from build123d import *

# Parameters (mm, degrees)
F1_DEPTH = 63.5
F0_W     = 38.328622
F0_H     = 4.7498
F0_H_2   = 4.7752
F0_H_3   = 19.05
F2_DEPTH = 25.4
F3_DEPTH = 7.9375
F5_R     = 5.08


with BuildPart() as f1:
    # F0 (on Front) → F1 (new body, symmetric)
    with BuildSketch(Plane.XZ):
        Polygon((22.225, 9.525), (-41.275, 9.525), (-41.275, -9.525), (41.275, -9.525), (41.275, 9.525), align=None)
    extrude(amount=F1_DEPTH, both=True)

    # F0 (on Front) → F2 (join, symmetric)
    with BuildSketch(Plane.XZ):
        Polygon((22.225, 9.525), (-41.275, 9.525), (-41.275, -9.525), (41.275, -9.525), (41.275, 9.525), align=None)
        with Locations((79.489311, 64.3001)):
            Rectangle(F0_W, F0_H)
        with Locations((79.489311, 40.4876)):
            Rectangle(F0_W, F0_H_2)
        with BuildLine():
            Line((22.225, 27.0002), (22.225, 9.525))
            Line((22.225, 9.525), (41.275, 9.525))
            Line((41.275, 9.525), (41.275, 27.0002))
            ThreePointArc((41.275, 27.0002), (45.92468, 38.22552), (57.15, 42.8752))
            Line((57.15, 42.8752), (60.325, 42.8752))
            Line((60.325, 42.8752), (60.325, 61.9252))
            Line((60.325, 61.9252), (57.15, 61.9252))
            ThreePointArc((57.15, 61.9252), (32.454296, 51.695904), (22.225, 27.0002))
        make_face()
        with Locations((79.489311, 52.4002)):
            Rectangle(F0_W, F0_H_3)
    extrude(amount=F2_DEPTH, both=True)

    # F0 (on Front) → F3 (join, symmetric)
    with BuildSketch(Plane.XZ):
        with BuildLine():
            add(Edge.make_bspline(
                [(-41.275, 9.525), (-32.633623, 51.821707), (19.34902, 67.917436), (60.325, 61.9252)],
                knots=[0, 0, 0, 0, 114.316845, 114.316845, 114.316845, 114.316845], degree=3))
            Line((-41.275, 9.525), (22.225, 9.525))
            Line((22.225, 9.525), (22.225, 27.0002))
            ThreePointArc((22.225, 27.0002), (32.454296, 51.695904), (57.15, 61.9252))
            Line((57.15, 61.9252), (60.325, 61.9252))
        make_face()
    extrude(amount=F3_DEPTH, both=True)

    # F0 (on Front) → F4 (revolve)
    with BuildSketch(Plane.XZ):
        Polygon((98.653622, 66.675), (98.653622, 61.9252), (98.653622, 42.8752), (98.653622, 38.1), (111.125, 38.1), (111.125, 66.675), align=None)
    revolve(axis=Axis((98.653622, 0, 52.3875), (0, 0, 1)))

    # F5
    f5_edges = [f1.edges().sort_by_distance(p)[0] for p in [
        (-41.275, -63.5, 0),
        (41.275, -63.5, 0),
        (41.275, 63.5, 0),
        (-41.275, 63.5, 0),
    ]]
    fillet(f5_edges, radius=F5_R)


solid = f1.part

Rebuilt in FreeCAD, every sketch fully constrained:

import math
import FreeCAD as App
import Part
import Sketcher
from FreeCAD import Vector
Q = App.Units.Quantity


def edges_at(feature, points):
    """Names of the edges that pass closest to the given points."""
    edges = feature.Shape.Edges
    near = lambda p: min(range(len(edges)), key=lambda i: edges[i].distToShape(Part.Vertex(*p))[0])
    return sorted({f"Edge{near(p) + 1}" for p in points})

doc = App.newDocument("Part")
body = doc.addObject("PartDesign::Body", "Body")

# Sketch on XZ plane
sketch1 = body.newObject("Sketcher::SketchObject", "Sketch")
sketch1.AttachmentSupport = (doc.getObject("XZ_Plane"), [""])
sketch1.MapMode = "FlatFace"
sketch1.addGeometry(Part.LineSegment(Vector(-41, 10, 0), Vector(-41, -10, 0)), False)
sketch1.addGeometry(Part.LineSegment(Vector(-41, -10, 0), Vector(41, -10, 0)), False)
sketch1.addGeometry(Part.LineSegment(Vector(41, -10, 0), Vector(41, 10, 0)), False)
sketch1.addGeometry(Part.LineSegment(Vector(41, 10, 0), Vector(-41, 10, 0)), False)
sketch1.addConstraint(Sketcher.Constraint("Coincident", 0, 2, 1, 1))
sketch1.addConstraint(Sketcher.Constraint("Coincident", 1, 2, 2, 1))
sketch1.addConstraint(Sketcher.Constraint("Coincident", 2, 2, 3, 1))
sketch1.addConstraint(Sketcher.Constraint("Coincident", 3, 2, 0, 1))
sketch1.addConstraint(Sketcher.Constraint("Vertical", 0))
sketch1.addConstraint(Sketcher.Constraint("Horizontal", 1))
sketch1.addConstraint(Sketcher.Constraint("Vertical", 2))
sketch1.addConstraint(Sketcher.Constraint("Horizontal", 3))
sketch1.addConstraint(Sketcher.Constraint("Symmetric", 0, 2, 2, 2, -1, 1))
sketch1.addConstraint(Sketcher.Constraint("DistanceX", 1, 1, 1, 2, Q("3.25 in")))
sketch1.addConstraint(Sketcher.Constraint("DistanceY", 0, 2, 0, 1, Q("0.75 in")))
pad1 = body.newObject("PartDesign::Pad", "Pad")
pad1.Profile = sketch1
pad1.Length = Q("5 in")
pad1.Midplane = True

# Sketch on XZ plane
sketch2 = body.newObject("Sketcher::SketchObject", "Sketch001")
sketch2.AttachmentSupport = (doc.getObject("XZ_Plane"), [""])
sketch2.MapMode = "FlatFace"
sketch2.addGeometry(Part.LineSegment(Vector(-41.3, 9.5, 0), Vector(-41.3, -9.5, 0)), False)
sketch2.addGeometry(Part.LineSegment(Vector(-41.3, -9.5, 0), Vector(41.3, -9.5, 0)), False)
sketch2.addGeometry(Part.LineSegment(Vector(41.3, -9.5, 0), Vector(41.3, 27, 0)), False)
sketch2.addGeometry(Part.ArcOfCircle(Part.Circle(Vector(57.2, 27, 0), Vector(0, 0, 1), 15.9), math.radians(90), math.radians(180)), False)
sketch2.addGeometry(Part.LineSegment(Vector(57.1, 42.9, 0), Vector(60.3, 42.9, 0)), False)
sketch2.addGeometry(Part.LineSegment(Vector(60.3, 42.9, 0), Vector(60.3, 38.1, 0)), False)
sketch2.addGeometry(Part.LineSegment(Vector(60.3, 38.1, 0), Vector(98.7, 38.1, 0)), False)
sketch2.addGeometry(Part.LineSegment(Vector(98.7, 38.1, 0), Vector(98.7, 66.7, 0)), False)
sketch2.addGeometry(Part.LineSegment(Vector(98.7, 66.7, 0), Vector(60.3, 66.7, 0)), False)
sketch2.addGeometry(Part.LineSegment(Vector(60.3, 66.7, 0), Vector(60.3, 61.9, 0)), False)
sketch2.addGeometry(Part.LineSegment(Vector(60.3, 61.9, 0), Vector(57.1, 61.9, 0)), False)
sketch2.addGeometry(Part.ArcOfCircle(Part.Circle(Vector(57.2, 27, 0), Vector(0, 0, 1), 34.9), math.radians(90), math.radians(180)), False)
sketch2.addGeometry(Part.LineSegment(Vector(22.2, 27, 0), Vector(22.2, 9.5, 0)), False)
sketch2.addGeometry(Part.LineSegment(Vector(22.2, 9.5, 0), Vector(-41.3, 9.5, 0)), False)
sketch2.addConstraint(Sketcher.Constraint("Coincident", 0, 2, 1, 1))
sketch2.addConstraint(Sketcher.Constraint("Coincident", 1, 2, 2, 1))
sketch2.addConstraint(Sketcher.Constraint("Tangent", 2, 2, 3, 2))
sketch2.addConstraint(Sketcher.Constraint("Tangent", 3, 1, 4, 1))
sketch2.addConstraint(Sketcher.Constraint("Coincident", 4, 2, 5, 1))
sketch2.addConstraint(Sketcher.Constraint("Coincident", 5, 2, 6, 1))
sketch2.addConstraint(Sketcher.Constraint("Coincident", 6, 2, 7, 1))
sketch2.addConstraint(Sketcher.Constraint("Coincident", 7, 2, 8, 1))
sketch2.addConstraint(Sketcher.Constraint("Coincident", 8, 2, 9, 1))
sketch2.addConstraint(Sketcher.Constraint("Coincident", 9, 2, 10, 1))
sketch2.addConstraint(Sketcher.Constraint("Tangent", 10, 2, 11, 1))
sketch2.addConstraint(Sketcher.Constraint("Tangent", 11, 2, 12, 1))
sketch2.addConstraint(Sketcher.Constraint("Coincident", 12, 2, 13, 1))
sketch2.addConstraint(Sketcher.Constraint("Coincident", 13, 2, 0, 1))
sketch2.addConstraint(Sketcher.Constraint("Vertical", 0))
sketch2.addConstraint(Sketcher.Constraint("Horizontal", 1))
sketch2.addConstraint(Sketcher.Constraint("Vertical", 2))
sketch2.addConstraint(Sketcher.Constraint("Horizontal", 4))
sketch2.addConstraint(Sketcher.Constraint("Vertical", 5))
sketch2.addConstraint(Sketcher.Constraint("Horizontal", 6))
sketch2.addConstraint(Sketcher.Constraint("Vertical", 7))
sketch2.addConstraint(Sketcher.Constraint("Horizontal", 8))
sketch2.addConstraint(Sketcher.Constraint("Vertical", 9))
sketch2.addConstraint(Sketcher.Constraint("Horizontal", 10))
sketch2.addConstraint(Sketcher.Constraint("Vertical", 12))
sketch2.addConstraint(Sketcher.Constraint("Horizontal", 13))
sketch2.addConstraint(Sketcher.Constraint("Coincident", 11, 3, 3, 3))
sketch2.addConstraint(Sketcher.Constraint("Symmetric", 1, 2, 13, 2, -1, 1))
sketch2.addConstraint(Sketcher.Constraint("Vertical", 5, 2, 8, 2))
sketch2.addConstraint(Sketcher.Constraint("DistanceX", 13, 2, 13, 1, Q("2.5 in")))
sketch2.addConstraint(Sketcher.Constraint("Radius", 3, Q("0.625 in")))
sketch2.addConstraint(Sketcher.Constraint("Radius", 11, Q("1.375 in")))
sketch2.addConstraint(Sketcher.Constraint("DistanceY", 0, 2, 0, 1, Q("0.75 in")))
sketch2.addConstraint(Sketcher.Constraint("DistanceY", -1, 1, 5, 2, Q("1.5 in")))
sketch2.addConstraint(Sketcher.Constraint("DistanceX", 11, 2, 5, 2, Q("1.5 in")))
sketch2.addConstraint(Sketcher.Constraint("DistanceY", 2, 1, 2, 2, Q("1.438 in")))
sketch2.addConstraint(Sketcher.Constraint("DistanceY", 7, 1, 7, 2, Q("1.125 in")))
sketch2.addConstraint(Sketcher.Constraint("DistanceX", 6, 1, 6, 2, 38.328622))
pad2 = body.newObject("PartDesign::Pad", "Pad001")
pad2.Profile = sketch2
pad2.Length = Q("2 in")
pad2.Midplane = True

# Sketch on XZ plane
sketch3 = body.newObject("Sketcher::SketchObject", "Sketch002")
sketch3.AttachmentSupport = (doc.getObject("XZ_Plane"), [""])
sketch3.MapMode = "FlatFace"
sketch3.addGeometry(Part.BSplineCurve([Vector(-41.275, 9.525, 0), Vector(-32.633623, 51.821707, 0), Vector(19.34902, 67.917436, 0), Vector(60.325, 61.9252, 0)], [4, 4], [0, 114.316845], False, 3, [1, 1, 1, 1], False), False)
sketch3.addGeometry(Part.LineSegment(Vector(-41.275, 9.525, 0), Vector(22.225, 9.525, 0)), False)
sketch3.addGeometry(Part.LineSegment(Vector(22.225, 9.525, 0), Vector(22.225, 27.0002, 0)), False)
sketch3.addGeometry(Part.ArcOfCircle(Part.Circle(Vector(57.150001, 27.000199, 0), Vector(0, 0, 1), 34.925001), math.radians(90.000002), math.radians(179.999998)), False)
sketch3.addGeometry(Part.LineSegment(Vector(57.15, 61.9252, 0), Vector(60.325, 61.9252, 0)), False)
sketch3.addConstraint(Sketcher.Constraint("Block", 0))
sketch3.addConstraint(Sketcher.Constraint("Coincident", 0, 1, 1, 1))
sketch3.addConstraint(Sketcher.Constraint("Coincident", 1, 2, 2, 1))
sketch3.addConstraint(Sketcher.Constraint("Tangent", 2, 2, 3, 2))
sketch3.addConstraint(Sketcher.Constraint("Tangent", 3, 1, 4, 1))
sketch3.addConstraint(Sketcher.Constraint("Coincident", 4, 2, 0, 2))
sketch3.addConstraint(Sketcher.Constraint("Horizontal", 1))
sketch3.addConstraint(Sketcher.Constraint("Vertical", 2))
sketch3.addConstraint(Sketcher.Constraint("Horizontal", 4))
sketch3.addConstraint(Sketcher.Constraint("DistanceX", 1, 1, 1, 2, Q("2.5 in")))
sketch3.addConstraint(Sketcher.Constraint("Radius", 3, Q("1.375 in")))
pad3 = body.newObject("PartDesign::Pad", "Pad002")
pad3.Profile = sketch3
pad3.Length = Q("0.625 in")
pad3.Midplane = True

# Sketch on XZ plane
sketch4 = body.newObject("Sketcher::SketchObject", "Sketch003")
sketch4.AttachmentSupport = (doc.getObject("XZ_Plane"), [""])
sketch4.MapMode = "FlatFace"
sketch4.addGeometry(Part.LineSegment(Vector(99, 67, 0), Vector(99, 38, 0)), False)
sketch4.addGeometry(Part.LineSegment(Vector(99, 38, 0), Vector(111, 38, 0)), False)
sketch4.addGeometry(Part.LineSegment(Vector(111, 38, 0), Vector(111, 67, 0)), False)
sketch4.addGeometry(Part.LineSegment(Vector(111, 67, 0), Vector(99, 67, 0)), False)
sketch4.addGeometry(Part.LineSegment(Vector(99, 38, 0), Vector(99, 67, 0)), True)  # axis
sketch4.addConstraint(Sketcher.Constraint("Coincident", 0, 2, 1, 1))
sketch4.addConstraint(Sketcher.Constraint("Coincident", 1, 2, 2, 1))
sketch4.addConstraint(Sketcher.Constraint("Coincident", 2, 2, 3, 1))
sketch4.addConstraint(Sketcher.Constraint("Coincident", 3, 2, 0, 1))
sketch4.addConstraint(Sketcher.Constraint("Vertical", 0))
sketch4.addConstraint(Sketcher.Constraint("Horizontal", 1))
sketch4.addConstraint(Sketcher.Constraint("Vertical", 2))
sketch4.addConstraint(Sketcher.Constraint("Horizontal", 3))
sketch4.addConstraint(Sketcher.Constraint("Vertical", 4))
sketch4.addConstraint(Sketcher.Constraint("Coincident", 4, 1, 0, 2))
sketch4.addConstraint(Sketcher.Constraint("Horizontal", 2, 2, 4, 2))
sketch4.addConstraint(Sketcher.Constraint("DistanceY", -1, 1, 0, 2, Q("1.5 in")))
sketch4.addConstraint(Sketcher.Constraint("DistanceY", 0, 2, 0, 1, Q("1.125 in")))
sketch4.addConstraint(Sketcher.Constraint("DistanceX", -1, 1, 1, 2, Q("4.375 in")))
sketch4.addConstraint(Sketcher.Constraint("DistanceX", 1, 1, 1, 2, 12.471378))
revolution = body.newObject("PartDesign::Revolution", "Revolution")
revolution.Profile = sketch4
revolution.ReferenceAxis = (sketch4, ["Axis0"])
revolution.Angle = 360
doc.recompute()

fillet = body.newObject("PartDesign::Fillet", "Fillet")
fillet.Base = (revolution, edges_at(revolution, [
    (-41.275, -63.5, 0),
    (41.275, -63.5, 0),
    (41.275, 63.5, 0),
    (-41.275, 63.5, 0),
]))
fillet.Radius = Q("0.2 in")

doc.recompute()
